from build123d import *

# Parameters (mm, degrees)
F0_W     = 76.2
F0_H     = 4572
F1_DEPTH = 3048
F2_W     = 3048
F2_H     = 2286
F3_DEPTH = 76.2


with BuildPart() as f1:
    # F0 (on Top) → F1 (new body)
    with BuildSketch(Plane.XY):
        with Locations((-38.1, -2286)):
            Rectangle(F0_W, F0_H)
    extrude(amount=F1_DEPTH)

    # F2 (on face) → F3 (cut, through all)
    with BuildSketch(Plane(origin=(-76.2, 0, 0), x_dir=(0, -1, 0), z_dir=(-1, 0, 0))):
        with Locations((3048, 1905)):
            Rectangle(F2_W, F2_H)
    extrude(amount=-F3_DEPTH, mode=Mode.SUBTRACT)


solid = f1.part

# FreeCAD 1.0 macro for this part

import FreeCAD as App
import Part
import Sketcher

V = App.Vector
Q = App.Units.Quantity


def add_polygon(sketch, points):
    """Adds a closed chain of lines whose ends are joined by coincident constraints."""
    first, n = sketch.GeometryCount, len(points)
    for a, b in zip(points, points[1:] + points[:1]):
        sketch.addGeometry(Part.LineSegment(App.Vector(*a, 0), App.Vector(*b, 0)), False)
    for i in range(n):
        sketch.addConstraint(Sketcher.Constraint("Coincident", first + i, 2, first + (i + 1) % n, 1))

doc = App.newDocument("Part")
params = doc.addObject("Spreadsheet::Sheet", "Params")
for row, (alias, value) in enumerate([
    ("sketch1_width", "3 in"),
    ("sketch1_height", "180 in"),
    ("pad1_length", "120 in"),
    ("sketch2_width", "120 in"),
    ("sketch2_height", "90 in"),
], start=1):
    params.set(f"A{row}", alias)
    params.set(f"B{row}", "=" + value)
    params.setAlias(f"B{row}", alias)

body = doc.addObject("PartDesign::Body", "Body")

# Sketch on XY plane
sketch1 = body.newObject("Sketcher::SketchObject", "Sketch")
sketch1.AttachmentSupport = (doc.getObject("XY_Plane"), [""])
sketch1.MapMode = "FlatFace"
add_polygon(sketch1, [(-76, 0), (-76, -4572), (0, -4572), (0, 0)])  # lines 0-3
sketch1.addConstraint([
    Sketcher.Constraint("Vertical", 0),
    Sketcher.Constraint("Horizontal", 1),
    Sketcher.Constraint("Vertical", 2),
    Sketcher.Constraint("Horizontal", 3),
    Sketcher.Constraint("Coincident", 2, 2, -1, 1),
    Sketcher.Constraint("DistanceX", 1, 1, 1, 2, Q("3 in")),
    Sketcher.Constraint("DistanceY", 0, 2, 0, 1, Q("180 in")),
])
sketch1.setExpression("Constraints[9]", "Params.sketch1_width")
sketch1.setExpression("Constraints[10]", "Params.sketch1_height")
pad1 = body.newObject("PartDesign::Pad", "Pad")
pad1.Profile = sketch1
pad1.setExpression("Length", "Params.pad1_length")

# Sketch on YZ plane
sketch2 = body.newObject("Sketcher::SketchObject", "Sketch001")
sketch2.AttachmentSupport = (doc.getObject("YZ_Plane"), [""])
sketch2.MapMode = "FlatFace"
sketch2.AttachmentOffset = App.Placement(V(0, 0, -3 * 25.4), App.Rotation())
add_polygon(sketch2, [(-1524, 3048), (-1524, 762), (-4572, 762), (-4572, 3048)])  # lines 0-3
sketch2.addConstraint([
    Sketcher.Constraint("Vertical", 0),
    Sketcher.Constraint("Horizontal", 1),
    Sketcher.Constraint("Vertical", 2),
    Sketcher.Constraint("Horizontal", 3),
    Sketcher.Constraint("DistanceX", 1, 2, 1, 1, Q("120 in")),
    Sketcher.Constraint("DistanceY", 0, 2, 0, 1, Q("90 in")),
    Sketcher.Constraint("DistanceX", 0, 2, -1, 1, Q("60 in")),
    Sketcher.Constraint("DistanceY", -1, 1, 0, 2, Q("30 in")),
])
sketch2.setExpression("Constraints[8]", "Params.sketch2_width")
sketch2.setExpression("Constraints[9]", "Params.sketch2_height")
pocket1 = body.newObject("PartDesign::Pocket", "Pocket")
pocket1.Profile = sketch2
pocket1.Type = "ThroughAll"
pocket1.Reversed = True

doc.recompute()
